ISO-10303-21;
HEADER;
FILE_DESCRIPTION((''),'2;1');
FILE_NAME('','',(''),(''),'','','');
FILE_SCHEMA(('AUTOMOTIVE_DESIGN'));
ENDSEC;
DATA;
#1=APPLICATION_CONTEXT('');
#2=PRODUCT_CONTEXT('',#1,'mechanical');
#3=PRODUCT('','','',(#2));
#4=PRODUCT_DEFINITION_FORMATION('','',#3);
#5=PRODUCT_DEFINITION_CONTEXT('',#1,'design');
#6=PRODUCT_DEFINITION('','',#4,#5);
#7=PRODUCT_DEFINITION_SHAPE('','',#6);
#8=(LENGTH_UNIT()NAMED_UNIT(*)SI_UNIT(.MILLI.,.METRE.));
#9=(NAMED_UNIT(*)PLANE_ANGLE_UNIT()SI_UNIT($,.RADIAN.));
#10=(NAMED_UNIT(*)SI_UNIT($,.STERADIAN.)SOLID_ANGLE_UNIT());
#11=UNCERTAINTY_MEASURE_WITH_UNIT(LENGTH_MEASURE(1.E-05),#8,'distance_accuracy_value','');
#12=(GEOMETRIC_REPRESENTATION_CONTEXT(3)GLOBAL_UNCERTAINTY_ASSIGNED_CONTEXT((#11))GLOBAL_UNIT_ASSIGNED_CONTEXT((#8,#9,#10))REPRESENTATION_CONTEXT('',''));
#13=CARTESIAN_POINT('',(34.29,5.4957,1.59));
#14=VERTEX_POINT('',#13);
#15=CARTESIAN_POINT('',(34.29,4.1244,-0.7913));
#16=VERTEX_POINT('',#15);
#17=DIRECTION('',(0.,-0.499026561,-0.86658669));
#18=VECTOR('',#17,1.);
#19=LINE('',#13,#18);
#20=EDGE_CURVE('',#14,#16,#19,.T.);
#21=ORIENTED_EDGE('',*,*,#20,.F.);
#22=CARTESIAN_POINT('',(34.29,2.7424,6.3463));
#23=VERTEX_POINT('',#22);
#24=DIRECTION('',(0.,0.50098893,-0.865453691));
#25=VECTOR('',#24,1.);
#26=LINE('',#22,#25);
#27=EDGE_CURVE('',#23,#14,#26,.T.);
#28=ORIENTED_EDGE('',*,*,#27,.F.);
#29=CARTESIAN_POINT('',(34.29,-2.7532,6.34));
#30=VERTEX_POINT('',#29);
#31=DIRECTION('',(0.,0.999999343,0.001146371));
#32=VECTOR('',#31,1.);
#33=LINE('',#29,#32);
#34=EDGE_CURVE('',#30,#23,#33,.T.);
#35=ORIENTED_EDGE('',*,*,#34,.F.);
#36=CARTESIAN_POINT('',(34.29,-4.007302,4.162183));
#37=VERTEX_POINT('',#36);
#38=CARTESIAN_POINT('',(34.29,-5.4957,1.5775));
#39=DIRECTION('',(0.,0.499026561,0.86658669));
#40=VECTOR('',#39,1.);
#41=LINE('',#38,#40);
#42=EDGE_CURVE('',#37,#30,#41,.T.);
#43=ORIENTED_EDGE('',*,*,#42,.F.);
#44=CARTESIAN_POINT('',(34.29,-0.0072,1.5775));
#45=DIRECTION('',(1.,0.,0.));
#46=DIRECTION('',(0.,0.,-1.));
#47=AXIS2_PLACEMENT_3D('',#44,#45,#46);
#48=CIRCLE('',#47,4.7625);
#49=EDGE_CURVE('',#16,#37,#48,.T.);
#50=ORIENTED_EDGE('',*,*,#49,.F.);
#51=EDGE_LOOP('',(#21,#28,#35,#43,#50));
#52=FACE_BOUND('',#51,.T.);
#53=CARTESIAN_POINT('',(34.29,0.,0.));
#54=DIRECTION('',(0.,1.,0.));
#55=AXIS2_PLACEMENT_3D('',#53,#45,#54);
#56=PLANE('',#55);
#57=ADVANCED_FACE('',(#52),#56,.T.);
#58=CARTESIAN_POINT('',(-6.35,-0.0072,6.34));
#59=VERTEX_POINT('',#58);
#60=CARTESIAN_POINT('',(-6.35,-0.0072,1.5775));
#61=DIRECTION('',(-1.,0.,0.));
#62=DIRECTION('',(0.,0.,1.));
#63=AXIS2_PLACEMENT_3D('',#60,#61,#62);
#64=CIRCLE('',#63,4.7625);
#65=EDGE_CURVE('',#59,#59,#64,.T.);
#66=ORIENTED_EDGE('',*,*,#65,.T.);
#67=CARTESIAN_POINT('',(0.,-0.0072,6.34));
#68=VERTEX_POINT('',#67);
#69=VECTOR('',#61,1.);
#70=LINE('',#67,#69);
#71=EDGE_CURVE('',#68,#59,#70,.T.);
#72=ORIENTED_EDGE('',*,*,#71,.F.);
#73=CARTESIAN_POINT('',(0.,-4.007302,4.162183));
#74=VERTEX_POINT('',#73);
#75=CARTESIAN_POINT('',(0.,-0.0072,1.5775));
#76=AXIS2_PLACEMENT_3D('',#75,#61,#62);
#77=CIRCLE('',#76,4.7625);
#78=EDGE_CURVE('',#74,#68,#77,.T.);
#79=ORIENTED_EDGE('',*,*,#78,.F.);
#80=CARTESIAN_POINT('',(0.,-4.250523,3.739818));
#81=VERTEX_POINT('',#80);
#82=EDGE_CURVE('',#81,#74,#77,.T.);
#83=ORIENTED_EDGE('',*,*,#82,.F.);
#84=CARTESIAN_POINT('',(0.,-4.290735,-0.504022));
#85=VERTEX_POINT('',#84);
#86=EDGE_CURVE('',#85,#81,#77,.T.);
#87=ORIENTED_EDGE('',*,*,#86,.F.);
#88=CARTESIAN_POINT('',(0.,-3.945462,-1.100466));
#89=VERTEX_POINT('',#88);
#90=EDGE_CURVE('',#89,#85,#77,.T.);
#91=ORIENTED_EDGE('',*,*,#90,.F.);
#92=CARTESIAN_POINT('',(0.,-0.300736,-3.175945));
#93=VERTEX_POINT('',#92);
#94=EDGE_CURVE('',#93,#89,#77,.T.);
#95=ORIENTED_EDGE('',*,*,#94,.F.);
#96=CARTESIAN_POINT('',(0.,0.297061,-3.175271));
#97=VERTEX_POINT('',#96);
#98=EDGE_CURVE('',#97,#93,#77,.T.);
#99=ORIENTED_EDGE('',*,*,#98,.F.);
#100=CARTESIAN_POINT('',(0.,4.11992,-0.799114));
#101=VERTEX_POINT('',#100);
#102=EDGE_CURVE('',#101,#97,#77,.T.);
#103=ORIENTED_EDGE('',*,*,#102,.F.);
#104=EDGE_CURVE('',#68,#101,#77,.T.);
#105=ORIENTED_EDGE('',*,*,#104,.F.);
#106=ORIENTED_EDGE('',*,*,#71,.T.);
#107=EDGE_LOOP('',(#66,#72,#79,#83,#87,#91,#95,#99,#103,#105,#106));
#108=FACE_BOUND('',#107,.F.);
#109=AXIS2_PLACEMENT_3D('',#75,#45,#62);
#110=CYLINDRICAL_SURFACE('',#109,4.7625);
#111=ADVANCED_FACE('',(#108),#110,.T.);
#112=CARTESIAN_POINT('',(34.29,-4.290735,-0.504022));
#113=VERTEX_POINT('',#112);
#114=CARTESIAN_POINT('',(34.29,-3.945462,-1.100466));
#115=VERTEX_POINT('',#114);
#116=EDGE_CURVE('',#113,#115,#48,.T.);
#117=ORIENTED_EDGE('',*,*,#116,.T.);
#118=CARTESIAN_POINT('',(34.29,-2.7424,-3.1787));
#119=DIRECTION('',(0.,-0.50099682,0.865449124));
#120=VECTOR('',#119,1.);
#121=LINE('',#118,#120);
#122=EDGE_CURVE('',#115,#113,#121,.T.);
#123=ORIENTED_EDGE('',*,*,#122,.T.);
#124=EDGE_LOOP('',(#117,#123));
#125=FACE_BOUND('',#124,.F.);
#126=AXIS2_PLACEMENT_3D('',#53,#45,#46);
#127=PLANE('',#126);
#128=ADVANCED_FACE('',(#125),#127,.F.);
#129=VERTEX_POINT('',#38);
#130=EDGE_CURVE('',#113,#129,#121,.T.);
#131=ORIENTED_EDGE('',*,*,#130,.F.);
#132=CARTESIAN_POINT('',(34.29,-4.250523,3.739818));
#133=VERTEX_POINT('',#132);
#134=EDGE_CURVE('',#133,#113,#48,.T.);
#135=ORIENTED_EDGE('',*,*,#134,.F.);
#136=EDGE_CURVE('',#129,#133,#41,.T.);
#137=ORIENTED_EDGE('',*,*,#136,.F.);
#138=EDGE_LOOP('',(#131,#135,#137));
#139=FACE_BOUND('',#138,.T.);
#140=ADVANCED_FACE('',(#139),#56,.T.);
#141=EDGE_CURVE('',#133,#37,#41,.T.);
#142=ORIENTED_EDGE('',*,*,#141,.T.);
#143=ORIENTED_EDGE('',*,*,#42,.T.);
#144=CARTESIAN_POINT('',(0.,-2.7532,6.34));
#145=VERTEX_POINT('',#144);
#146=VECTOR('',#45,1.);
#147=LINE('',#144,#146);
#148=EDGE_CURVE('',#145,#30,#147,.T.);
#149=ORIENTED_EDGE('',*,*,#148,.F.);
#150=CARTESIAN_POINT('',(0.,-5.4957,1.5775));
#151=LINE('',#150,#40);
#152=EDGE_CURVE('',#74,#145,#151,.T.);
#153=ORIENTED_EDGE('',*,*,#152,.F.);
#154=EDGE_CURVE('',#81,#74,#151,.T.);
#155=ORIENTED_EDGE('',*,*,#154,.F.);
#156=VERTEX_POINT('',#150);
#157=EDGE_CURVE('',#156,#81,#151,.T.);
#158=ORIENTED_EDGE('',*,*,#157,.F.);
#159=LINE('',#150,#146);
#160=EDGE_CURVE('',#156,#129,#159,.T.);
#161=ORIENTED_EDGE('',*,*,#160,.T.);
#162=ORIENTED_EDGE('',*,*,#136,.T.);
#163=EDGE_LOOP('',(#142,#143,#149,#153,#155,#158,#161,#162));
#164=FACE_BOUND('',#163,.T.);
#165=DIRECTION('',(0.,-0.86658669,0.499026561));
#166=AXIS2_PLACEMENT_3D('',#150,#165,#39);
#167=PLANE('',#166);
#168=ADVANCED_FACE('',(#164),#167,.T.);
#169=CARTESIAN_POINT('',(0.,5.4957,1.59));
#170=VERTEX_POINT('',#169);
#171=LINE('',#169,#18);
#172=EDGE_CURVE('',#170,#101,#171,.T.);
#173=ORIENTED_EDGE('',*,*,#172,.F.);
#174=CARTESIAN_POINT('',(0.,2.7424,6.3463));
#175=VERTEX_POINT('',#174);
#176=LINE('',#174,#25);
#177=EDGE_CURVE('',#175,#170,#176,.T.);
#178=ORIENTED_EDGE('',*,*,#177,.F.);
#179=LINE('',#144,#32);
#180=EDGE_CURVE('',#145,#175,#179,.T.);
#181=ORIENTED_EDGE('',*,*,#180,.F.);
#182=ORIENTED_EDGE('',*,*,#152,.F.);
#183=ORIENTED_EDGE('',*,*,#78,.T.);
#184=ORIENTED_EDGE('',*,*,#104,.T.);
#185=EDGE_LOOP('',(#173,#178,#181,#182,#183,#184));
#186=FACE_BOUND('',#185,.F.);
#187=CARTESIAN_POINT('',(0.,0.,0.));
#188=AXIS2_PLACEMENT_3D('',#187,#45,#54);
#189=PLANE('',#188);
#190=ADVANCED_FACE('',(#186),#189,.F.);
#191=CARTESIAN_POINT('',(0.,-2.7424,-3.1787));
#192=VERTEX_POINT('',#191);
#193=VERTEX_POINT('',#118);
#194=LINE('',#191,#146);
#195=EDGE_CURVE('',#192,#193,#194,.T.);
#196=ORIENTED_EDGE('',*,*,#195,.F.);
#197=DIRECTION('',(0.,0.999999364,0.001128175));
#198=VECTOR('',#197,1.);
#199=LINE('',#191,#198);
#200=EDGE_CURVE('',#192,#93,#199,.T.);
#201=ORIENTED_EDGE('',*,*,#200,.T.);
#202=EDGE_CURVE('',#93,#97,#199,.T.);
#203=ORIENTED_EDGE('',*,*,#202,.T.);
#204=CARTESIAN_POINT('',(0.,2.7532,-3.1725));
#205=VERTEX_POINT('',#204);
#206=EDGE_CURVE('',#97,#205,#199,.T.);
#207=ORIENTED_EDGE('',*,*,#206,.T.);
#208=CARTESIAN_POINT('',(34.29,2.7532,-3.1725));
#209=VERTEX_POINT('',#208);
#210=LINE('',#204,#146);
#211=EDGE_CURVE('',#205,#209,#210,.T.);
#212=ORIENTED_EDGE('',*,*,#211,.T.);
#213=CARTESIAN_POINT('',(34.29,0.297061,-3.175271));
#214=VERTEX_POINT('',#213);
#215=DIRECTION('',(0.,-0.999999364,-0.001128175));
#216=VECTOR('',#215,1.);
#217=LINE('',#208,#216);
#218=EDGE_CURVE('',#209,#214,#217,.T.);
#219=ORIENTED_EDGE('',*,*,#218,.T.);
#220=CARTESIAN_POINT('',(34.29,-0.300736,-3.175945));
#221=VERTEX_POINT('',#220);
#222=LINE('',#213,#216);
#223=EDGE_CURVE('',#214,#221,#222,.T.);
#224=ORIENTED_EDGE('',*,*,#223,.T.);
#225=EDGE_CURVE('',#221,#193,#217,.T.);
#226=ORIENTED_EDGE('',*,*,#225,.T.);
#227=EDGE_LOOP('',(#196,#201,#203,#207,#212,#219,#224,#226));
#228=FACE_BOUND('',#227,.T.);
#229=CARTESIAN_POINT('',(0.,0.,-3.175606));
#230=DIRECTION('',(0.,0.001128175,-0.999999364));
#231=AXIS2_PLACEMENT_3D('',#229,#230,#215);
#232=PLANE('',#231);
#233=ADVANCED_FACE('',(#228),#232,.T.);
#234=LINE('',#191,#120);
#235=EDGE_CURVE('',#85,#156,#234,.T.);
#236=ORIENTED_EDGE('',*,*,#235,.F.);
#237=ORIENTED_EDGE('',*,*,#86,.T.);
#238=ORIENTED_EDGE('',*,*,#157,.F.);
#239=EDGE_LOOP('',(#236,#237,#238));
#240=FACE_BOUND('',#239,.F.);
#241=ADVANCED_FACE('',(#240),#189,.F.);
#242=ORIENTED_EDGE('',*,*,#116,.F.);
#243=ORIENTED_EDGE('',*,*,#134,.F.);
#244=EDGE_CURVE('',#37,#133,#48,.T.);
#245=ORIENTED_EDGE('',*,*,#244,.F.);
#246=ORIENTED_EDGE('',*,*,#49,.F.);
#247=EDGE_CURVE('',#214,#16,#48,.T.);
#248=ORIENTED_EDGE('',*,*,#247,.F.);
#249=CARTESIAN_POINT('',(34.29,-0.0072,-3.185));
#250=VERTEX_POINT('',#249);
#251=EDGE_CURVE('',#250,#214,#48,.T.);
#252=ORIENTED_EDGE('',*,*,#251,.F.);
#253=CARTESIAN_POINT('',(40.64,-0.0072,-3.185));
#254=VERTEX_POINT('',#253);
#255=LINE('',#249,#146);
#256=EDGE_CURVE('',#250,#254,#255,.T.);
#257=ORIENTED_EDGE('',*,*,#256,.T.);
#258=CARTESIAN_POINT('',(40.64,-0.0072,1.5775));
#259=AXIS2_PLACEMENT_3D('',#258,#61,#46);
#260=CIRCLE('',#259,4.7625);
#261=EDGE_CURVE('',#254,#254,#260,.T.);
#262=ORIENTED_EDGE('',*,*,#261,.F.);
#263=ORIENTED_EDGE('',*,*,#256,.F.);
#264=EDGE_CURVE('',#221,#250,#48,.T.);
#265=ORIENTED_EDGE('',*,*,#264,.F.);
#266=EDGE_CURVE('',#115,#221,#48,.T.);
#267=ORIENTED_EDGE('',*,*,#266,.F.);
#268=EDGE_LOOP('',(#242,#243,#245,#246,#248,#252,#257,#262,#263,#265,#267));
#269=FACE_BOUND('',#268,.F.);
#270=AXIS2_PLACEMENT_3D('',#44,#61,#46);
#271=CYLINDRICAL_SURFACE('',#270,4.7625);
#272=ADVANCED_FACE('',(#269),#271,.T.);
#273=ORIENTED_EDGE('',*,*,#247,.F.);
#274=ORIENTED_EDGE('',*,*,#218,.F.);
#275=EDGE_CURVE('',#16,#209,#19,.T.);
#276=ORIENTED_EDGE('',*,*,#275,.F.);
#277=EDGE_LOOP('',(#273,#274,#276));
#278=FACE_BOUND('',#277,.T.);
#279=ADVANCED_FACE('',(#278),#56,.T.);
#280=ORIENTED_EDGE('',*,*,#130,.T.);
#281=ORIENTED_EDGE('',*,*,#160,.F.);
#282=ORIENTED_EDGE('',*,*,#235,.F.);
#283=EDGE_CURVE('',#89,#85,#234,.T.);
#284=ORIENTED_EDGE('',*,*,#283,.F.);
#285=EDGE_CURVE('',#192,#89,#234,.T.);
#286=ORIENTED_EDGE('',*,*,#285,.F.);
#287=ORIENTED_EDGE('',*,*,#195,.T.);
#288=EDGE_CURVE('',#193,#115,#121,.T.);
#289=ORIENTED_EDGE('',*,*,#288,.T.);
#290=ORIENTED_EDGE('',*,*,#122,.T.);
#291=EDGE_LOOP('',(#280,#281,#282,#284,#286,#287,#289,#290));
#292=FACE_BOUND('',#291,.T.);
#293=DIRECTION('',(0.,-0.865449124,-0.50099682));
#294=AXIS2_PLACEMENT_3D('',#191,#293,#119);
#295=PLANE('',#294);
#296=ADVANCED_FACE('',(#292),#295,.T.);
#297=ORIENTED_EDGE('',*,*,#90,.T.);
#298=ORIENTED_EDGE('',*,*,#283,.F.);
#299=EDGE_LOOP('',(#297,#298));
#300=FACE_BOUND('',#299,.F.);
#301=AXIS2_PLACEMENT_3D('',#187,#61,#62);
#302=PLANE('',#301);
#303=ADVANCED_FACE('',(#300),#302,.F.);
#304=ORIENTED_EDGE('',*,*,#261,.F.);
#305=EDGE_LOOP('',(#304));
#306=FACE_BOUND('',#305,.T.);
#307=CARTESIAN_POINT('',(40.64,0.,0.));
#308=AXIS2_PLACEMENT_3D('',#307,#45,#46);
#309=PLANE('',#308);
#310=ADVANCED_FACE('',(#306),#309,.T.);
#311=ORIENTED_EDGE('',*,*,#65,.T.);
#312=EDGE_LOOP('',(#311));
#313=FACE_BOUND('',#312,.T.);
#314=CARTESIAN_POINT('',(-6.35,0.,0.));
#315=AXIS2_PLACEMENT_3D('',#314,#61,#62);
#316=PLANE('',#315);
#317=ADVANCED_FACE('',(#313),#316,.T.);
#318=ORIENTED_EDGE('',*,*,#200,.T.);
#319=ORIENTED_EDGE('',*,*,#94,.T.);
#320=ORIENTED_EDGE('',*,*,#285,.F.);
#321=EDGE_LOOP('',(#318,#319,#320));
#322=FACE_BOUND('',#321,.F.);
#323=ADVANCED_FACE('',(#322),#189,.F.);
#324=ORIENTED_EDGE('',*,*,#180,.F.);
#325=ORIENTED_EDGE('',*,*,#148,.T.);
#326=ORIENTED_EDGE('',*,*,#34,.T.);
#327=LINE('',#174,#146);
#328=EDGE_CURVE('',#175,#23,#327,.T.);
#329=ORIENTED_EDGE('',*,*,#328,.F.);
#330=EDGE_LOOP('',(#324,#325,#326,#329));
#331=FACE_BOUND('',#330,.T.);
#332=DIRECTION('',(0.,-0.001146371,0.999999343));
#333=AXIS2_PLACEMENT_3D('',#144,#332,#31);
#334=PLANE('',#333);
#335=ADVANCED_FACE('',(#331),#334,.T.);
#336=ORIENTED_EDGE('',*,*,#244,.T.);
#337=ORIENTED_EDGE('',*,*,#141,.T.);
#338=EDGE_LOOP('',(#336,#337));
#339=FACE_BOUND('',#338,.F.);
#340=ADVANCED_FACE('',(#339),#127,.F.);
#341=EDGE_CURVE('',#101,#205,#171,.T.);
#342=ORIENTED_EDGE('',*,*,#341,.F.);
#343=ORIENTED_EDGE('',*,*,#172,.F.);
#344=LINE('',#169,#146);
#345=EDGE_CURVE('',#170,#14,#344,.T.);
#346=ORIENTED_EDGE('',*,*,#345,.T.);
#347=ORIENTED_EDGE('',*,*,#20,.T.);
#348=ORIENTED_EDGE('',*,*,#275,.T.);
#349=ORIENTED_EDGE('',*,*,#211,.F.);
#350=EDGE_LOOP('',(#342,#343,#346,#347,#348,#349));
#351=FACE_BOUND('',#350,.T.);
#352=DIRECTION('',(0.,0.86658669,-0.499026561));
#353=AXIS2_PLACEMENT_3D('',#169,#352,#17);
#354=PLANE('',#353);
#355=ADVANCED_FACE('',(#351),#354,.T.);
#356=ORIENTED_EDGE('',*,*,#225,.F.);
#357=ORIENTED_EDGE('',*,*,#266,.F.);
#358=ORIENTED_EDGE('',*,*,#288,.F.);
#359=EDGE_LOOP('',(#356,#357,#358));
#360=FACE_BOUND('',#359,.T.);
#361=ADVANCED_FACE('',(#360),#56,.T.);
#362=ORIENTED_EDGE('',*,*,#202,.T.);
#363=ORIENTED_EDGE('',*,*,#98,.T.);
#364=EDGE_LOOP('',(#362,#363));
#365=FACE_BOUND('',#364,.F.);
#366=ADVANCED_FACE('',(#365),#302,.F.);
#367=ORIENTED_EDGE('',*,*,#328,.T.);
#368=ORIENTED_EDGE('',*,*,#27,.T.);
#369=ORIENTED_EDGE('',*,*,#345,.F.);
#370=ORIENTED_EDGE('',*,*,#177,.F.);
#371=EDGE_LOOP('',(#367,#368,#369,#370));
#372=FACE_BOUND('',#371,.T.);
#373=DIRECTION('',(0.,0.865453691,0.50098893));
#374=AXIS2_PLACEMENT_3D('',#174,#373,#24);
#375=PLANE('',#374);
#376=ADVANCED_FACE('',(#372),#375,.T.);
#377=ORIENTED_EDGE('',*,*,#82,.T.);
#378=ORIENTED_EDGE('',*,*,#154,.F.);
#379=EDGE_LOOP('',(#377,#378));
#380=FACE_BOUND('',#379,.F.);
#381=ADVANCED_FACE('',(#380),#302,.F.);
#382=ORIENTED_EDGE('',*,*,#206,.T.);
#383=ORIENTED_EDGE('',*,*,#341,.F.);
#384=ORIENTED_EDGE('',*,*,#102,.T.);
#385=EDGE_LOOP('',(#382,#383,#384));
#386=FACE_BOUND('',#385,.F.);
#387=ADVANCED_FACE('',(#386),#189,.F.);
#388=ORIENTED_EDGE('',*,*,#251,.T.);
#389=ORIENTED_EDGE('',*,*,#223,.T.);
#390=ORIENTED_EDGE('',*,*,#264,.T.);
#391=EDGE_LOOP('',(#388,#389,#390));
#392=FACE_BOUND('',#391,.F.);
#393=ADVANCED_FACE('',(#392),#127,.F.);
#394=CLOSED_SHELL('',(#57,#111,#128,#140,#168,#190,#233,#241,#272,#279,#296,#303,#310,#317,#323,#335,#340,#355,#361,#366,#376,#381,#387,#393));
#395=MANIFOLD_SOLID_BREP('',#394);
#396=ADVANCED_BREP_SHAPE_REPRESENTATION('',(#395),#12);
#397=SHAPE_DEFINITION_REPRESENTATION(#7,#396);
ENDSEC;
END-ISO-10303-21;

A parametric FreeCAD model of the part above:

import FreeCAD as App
import Part
import Sketcher

V = App.Vector
Q = App.Units.Quantity


def add_polygon(sketch, points):
    """Adds a closed chain of lines whose ends are joined by coincident constraints."""
    first, n = sketch.GeometryCount, len(points)
    for a, b in zip(points, points[1:] + points[:1]):
        sketch.addGeometry(Part.LineSegment(App.Vector(*a, 0), App.Vector(*b, 0)), False)
    for i in range(n):
        sketch.addConstraint(Sketcher.Constraint("Coincident", first + i, 2, first + (i + 1) % n, 1))

doc = App.newDocument("Part")
params = doc.addObject("Spreadsheet::Sheet", "Params")
for row, (alias, value) in enumerate([
    ("pad1_length", "1.35 in"),
    ("sketch2_diameter", "0.375 in"),
    ("pad2_length", "0.25 in"),
    ("sketch3_diameter", "0.375 in"),
    ("pad3_length", "0.25 in"),
], start=1):
    params.set(f"A{row}", alias)
    params.set(f"B{row}", "=" + value)
    params.setAlias(f"B{row}", alias)

body = doc.addObject("PartDesign::Body", "Body")

# Sketch on YZ plane
sketch1 = body.newObject("Sketcher::SketchObject", "Sketch")
sketch1.AttachmentSupport = (doc.getObject("YZ_Plane"), [""])
sketch1.MapMode = "FlatFace"
add_polygon(sketch1, [(-5.4957, 1.5775), (-2.7424, -3.1787), (2.7532, -3.1725), (5.4957, 1.59), (2.7424, 6.3463), (-2.7532, 6.34)])  # lines 0-5
sketch1.addConstraint([
    Sketcher.Constraint("Parallel", 0, 3),
    Sketcher.Constraint("Parallel", 1, 4),
    Sketcher.Constraint("Parallel", 2, 5),
    Sketcher.Constraint("Equal", 0, 1),
    Sketcher.Constraint("Equal", 1, 2),
    Sketcher.Constraint("Equal", 2, 3),
    Sketcher.Constraint("DistanceY", 1, 2, 2, 2, Q("0.1875 in")),
    Sketcher.Constraint("DistanceY", 0, 2, 3, 2, Q("0.375 in")),
    Sketcher.Constraint("DistanceY", 2, 2, 4, 2, Q("0.187 in")),
    Sketcher.Constraint("DistanceX", -1, 1, 1, 2, Q("0.1084 in")),
    Sketcher.Constraint("DistanceY", 1, 2, -1, 1, Q("0.1249 in")),
    Sketcher.Constraint("DistanceX", 4, 2, -1, 1, Q("0.1084 in")),
])
pad1 = body.newObject("PartDesign::Pad", "Pad")
pad1.Profile = sketch1
pad1.setExpression("Length", "Params.pad1_length")

# Sketch on YZ plane
sketch2 = body.newObject("Sketcher::SketchObject", "Sketch001")
sketch2.AttachmentSupport = (doc.getObject("YZ_Plane"), [""])
sketch2.MapMode = "FlatFace"
sketch2.AttachmentOffset = App.Placement(V(0, 0, 1.35 * 25.4), App.Rotation())
sketch2.addGeometry(Part.Circle(V(-0.0072, 1.5775, 0), V(0, 0, 1), 4.7625), False)
sketch2.addConstraint([
    Sketcher.Constraint("Diameter", 0, Q("0.375 in")),
    Sketcher.Constraint("DistanceY", -1, 1, 0, 3, Q("0.0621 in")),
    Sketcher.Constraint("DistanceX", 0, 3, -1, 1, Q("0.0072 mm")),
])
sketch2.setExpression("Constraints[0]", "Params.sketch2_diameter")
pad2 = body.newObject("PartDesign::Pad", "Pad001")
pad2.Profile = sketch2
pad2.setExpression("Length", "Params.pad2_length")

# Sketch on YZ plane
sketch3 = body.newObject("Sketcher::SketchObject", "Sketch002")
sketch3.AttachmentSupport = (doc.getObject("YZ_Plane"), [""])
sketch3.MapMode = "FlatFace"
sketch3.addGeometry(Part.Circle(V(-0.0072, 1.5775, 0), V(0, 0, 1), 4.7625), False)
sketch3.addConstraint([
    Sketcher.Constraint("Diameter", 0, Q("0.375 in")),
    Sketcher.Constraint("DistanceY", -1, 1, 0, 3, Q("0.0621 in")),
    Sketcher.Constraint("DistanceX", 0, 3, -1, 1, Q("0.0072 mm")),
])
sketch3.setExpression("Constraints[0]", "Params.sketch3_diameter")
pad3 = body.newObject("PartDesign::Pad", "Pad002")
pad3.Profile = sketch3
pad3.setExpression("Length", "Params.pad3_length")
pad3.Reversed = True

doc.recompute()
